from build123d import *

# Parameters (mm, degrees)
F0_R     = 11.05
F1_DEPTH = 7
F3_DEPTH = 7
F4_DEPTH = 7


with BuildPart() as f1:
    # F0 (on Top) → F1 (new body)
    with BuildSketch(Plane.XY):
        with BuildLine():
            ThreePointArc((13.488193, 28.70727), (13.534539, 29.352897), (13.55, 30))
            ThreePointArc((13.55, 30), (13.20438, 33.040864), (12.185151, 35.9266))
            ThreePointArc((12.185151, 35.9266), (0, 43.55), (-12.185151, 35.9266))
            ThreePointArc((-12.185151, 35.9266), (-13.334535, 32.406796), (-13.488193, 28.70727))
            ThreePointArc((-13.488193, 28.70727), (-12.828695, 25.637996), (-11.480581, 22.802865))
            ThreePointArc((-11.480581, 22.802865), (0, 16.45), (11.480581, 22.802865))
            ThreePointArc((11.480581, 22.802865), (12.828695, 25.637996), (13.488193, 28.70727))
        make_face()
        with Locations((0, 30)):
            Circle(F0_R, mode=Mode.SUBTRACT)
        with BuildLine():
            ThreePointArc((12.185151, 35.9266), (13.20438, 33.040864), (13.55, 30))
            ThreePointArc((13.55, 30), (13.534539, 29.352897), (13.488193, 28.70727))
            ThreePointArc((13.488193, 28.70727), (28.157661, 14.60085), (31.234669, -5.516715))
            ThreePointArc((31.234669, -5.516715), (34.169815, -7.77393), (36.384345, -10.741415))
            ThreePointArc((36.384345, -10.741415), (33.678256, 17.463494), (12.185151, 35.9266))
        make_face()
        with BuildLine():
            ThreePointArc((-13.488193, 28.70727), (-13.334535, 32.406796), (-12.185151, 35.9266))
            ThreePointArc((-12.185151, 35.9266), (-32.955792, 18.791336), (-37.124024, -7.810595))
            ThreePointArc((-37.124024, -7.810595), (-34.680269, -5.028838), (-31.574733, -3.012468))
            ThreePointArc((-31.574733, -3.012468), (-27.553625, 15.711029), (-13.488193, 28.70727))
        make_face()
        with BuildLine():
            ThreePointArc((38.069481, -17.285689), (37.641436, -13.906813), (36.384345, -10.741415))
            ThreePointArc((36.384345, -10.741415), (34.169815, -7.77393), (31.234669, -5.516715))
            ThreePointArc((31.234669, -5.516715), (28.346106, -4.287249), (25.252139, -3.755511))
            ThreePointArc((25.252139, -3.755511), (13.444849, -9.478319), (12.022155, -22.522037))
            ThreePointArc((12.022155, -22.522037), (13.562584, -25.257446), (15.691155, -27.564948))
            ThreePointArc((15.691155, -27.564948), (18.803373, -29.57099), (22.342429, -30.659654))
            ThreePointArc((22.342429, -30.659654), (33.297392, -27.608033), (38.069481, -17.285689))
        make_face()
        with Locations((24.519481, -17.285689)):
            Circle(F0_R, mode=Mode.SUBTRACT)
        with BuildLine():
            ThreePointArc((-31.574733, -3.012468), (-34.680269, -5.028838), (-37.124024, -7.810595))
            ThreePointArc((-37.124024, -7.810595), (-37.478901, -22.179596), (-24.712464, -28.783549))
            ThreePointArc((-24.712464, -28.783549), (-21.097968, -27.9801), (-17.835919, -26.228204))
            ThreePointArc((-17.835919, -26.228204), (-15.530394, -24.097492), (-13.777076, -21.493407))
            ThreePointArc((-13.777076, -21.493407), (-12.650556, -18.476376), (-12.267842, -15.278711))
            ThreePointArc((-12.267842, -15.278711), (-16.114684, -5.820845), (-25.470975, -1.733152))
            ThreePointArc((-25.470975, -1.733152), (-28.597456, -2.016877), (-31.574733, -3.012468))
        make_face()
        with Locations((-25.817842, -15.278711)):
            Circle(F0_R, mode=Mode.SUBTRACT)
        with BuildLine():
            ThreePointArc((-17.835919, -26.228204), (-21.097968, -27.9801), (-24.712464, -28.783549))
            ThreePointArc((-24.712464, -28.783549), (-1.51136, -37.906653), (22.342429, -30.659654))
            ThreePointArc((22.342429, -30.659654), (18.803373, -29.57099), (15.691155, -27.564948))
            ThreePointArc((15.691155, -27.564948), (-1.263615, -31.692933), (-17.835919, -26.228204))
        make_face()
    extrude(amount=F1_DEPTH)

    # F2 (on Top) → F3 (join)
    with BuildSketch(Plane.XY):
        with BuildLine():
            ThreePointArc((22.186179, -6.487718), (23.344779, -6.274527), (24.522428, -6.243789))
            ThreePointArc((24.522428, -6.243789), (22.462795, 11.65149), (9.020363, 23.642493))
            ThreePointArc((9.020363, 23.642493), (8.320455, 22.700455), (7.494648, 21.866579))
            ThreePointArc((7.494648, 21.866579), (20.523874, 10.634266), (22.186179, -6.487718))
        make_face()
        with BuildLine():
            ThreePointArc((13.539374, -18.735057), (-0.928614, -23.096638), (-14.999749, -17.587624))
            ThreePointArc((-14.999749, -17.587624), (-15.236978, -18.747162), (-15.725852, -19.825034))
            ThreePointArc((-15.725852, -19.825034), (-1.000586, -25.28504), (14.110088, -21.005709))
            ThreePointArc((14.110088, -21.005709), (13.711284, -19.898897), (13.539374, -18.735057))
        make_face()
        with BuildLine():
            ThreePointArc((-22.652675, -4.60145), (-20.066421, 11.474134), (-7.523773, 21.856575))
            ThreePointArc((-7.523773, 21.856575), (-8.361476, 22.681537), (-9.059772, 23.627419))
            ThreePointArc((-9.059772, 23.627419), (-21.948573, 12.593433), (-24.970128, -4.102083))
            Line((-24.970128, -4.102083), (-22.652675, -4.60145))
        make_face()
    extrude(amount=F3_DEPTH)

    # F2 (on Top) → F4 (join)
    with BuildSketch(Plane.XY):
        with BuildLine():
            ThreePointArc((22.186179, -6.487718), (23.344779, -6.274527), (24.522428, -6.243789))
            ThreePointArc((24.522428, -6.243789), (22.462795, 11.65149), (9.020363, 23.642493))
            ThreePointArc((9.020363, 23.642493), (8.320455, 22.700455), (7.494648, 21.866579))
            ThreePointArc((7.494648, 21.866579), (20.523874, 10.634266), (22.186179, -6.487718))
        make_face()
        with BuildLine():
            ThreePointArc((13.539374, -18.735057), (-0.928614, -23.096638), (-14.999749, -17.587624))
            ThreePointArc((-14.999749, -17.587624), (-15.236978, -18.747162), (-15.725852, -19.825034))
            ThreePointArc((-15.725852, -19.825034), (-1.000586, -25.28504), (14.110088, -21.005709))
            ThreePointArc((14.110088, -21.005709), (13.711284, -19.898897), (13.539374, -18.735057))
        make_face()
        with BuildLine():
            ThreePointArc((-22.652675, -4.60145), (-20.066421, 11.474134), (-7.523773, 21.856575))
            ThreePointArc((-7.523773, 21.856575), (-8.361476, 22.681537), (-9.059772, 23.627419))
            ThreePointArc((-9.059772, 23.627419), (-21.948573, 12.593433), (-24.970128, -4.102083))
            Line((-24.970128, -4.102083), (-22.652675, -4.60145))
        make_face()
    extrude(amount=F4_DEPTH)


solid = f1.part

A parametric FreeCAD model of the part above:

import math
import FreeCAD as App
import Part
import Sketcher

V = App.Vector

doc = App.newDocument("Part")
body = doc.addObject("PartDesign::Body", "Body")

# Sketch on XY plane
sketch1 = doc.addObject("Sketcher::SketchObject", "Sketch")
body.addObject(sketch1)
sketch1.AttachmentSupport = (doc.XY_Plane, [""])
sketch1.MapMode = "FlatFace"
sketch1.addGeometry([
    Part.ArcOfCircle(Part.Circle(V(25, -17, 0), V(0, 0, 1), 14), math.radians(-99), math.radians(0)),  # 0
    Part.ArcOfCircle(Part.Circle(V(25, -17, 0), V(0, 0, 1), 14), math.radians(0), math.radians(29)),  # 1
    Part.ArcOfCircle(Part.Circle(V(0, 0, 0), V(0, 0, 1), 38), math.radians(-16), math.radians(71)),  # 2
    Part.ArcOfCircle(Part.Circle(V(0, 30, 0), V(0, 0, 1), 14), math.radians(26), math.radians(154)),  # 3
    Part.ArcOfCircle(Part.Circle(V(0, 0, 0), V(0, 0, 1), 38), math.radians(109), math.radians(192)),  # 4
    Part.ArcOfCircle(Part.Circle(V(-26, -15, 0), V(0, 0, 1), 14), math.radians(147), math.radians(275)),  # 5
    Part.ArcOfCircle(Part.Circle(V(0, 0, 0), V(0, 0, 1), 38), math.radians(-131), math.radians(-54)),  # 6
    Part.ArcOfCircle(Part.Circle(V(0, 30, 0), V(0, 0, 1), 14), math.radians(-32), math.radians(-5)),  # 7
    Part.ArcOfCircle(Part.Circle(V(0, 0, 0), V(0, 0, 1), 32), math.radians(-10), math.radians(65)),  # 8
    Part.ArcOfCircle(Part.Circle(V(25, -17, 0), V(0, 0, 1), 14), math.radians(60), math.radians(87)),  # 9
    Part.ArcOfCircle(Part.Circle(V(25, -17, 0), V(0, 0, 1), 14), math.radians(87), math.radians(203)),  # 10
    Part.ArcOfCircle(Part.Circle(V(25, -17, 0), V(0, 0, 1), 14), math.radians(-157), math.radians(-131)),  # 11
    Part.ArcOfCircle(Part.Circle(V(0, 0, 0), V(0, 0, 1), 32), math.radians(-124), math.radians(-60)),  # 12
    Part.ArcOfCircle(Part.Circle(V(-26, -15, 0), V(0, 0, 1), 14), math.radians(-54), math.radians(-27)),  # 13
    Part.ArcOfCircle(Part.Circle(V(-26, -15, 0), V(0, 0, 1), 14), math.radians(-27), math.radians(0)),  # 14
    Part.ArcOfCircle(Part.Circle(V(-26, -15, 0), V(0, 0, 1), 14), math.radians(0), math.radians(89)),  # 15
    Part.ArcOfCircle(Part.Circle(V(-26, -15, 0), V(0, 0, 1), 14), math.radians(89), math.radians(115)),  # 16
    Part.ArcOfCircle(Part.Circle(V(0, 0, 0), V(0, 0, 1), 32), math.radians(115), math.radians(185)),  # 17
    Part.ArcOfCircle(Part.Circle(V(0, 30, 0), V(0, 0, 1), 14), math.radians(-175), math.radians(-148)),  # 18
    Part.ArcOfCircle(Part.Circle(V(0, 30, 0), V(0, 0, 1), 14), math.radians(-148), math.radians(-32)),  # 19
    Part.Circle(V(-26, -15, 0), V(0, 0, 1), 11),  # 20
    Part.Circle(V(25, -17, 0), V(0, 0, 1), 11),  # 21
    Part.Circle(V(0, 30, 0), V(0, 0, 1), 11),  # 22
], False)
sketch1.addConstraint([
    Sketcher.Constraint("Tangent", 0, 2, 1, 1),
    Sketcher.Constraint("Coincident", 1, 2, 2, 1),
    Sketcher.Constraint("Coincident", 2, 2, 3, 1),
    Sketcher.Constraint("Coincident", 3, 2, 4, 1),
    Sketcher.Constraint("Coincident", 4, 2, 5, 1),
    Sketcher.Constraint("Coincident", 5, 2, 6, 1),
    Sketcher.Constraint("Coincident", 6, 2, 0, 1),
    Sketcher.Constraint("Coincident", 7, 2, 8, 2),
    Sketcher.Constraint("Coincident", 8, 1, 9, 1),
    Sketcher.Constraint("Tangent", 9, 2, 10, 1),
    Sketcher.Constraint("Tangent", 10, 2, 11, 1),
    Sketcher.Constraint("Coincident", 11, 2, 12, 2),
    Sketcher.Constraint("Coincident", 12, 1, 13, 1),
    Sketcher.Constraint("Tangent", 13, 2, 14, 1),
    Sketcher.Constraint("Tangent", 14, 2, 15, 1),
    Sketcher.Constraint("Tangent", 15, 2, 16, 1),
    Sketcher.Constraint("Coincident", 16, 2, 17, 2),
    Sketcher.Constraint("Coincident", 17, 1, 18, 1),
    Sketcher.Constraint("Tangent", 18, 2, 19, 1),
    Sketcher.Constraint("Tangent", 19, 2, 7, 1),
    Sketcher.Constraint("Coincident", 2, 3, -1, 1),
    Sketcher.Constraint("Coincident", 4, 3, -1, 1),
    Sketcher.Constraint("Coincident", 6, 3, -1, 1),
    Sketcher.Constraint("Coincident", 8, 3, -1, 1),
    Sketcher.Constraint("Coincident", 12, 3, -1, 1),
    Sketcher.Constraint("Coincident", 17, 3, -1, 1),
    Sketcher.Constraint("Coincident", 7, 3, 3, 3),
    Sketcher.Constraint("Coincident", 9, 3, 0, 3),
    Sketcher.Constraint("Coincident", 11, 3, 0, 3),
    Sketcher.Constraint("Coincident", 15, 3, 5, 3),
    Sketcher.Constraint("Coincident", 18, 3, 3, 3),
    Sketcher.Constraint("Coincident", 20, 3, 5, 3),
    Sketcher.Constraint("Coincident", 21, 3, 0, 3),
    Sketcher.Constraint("Coincident", 22, 3, 3, 3),
    Sketcher.Constraint("Equal", 0, 3),
    Sketcher.Constraint("Equal", 2, 4),
    Sketcher.Constraint("Equal", 3, 5),
    Sketcher.Constraint("Equal", 4, 6),
    Sketcher.Constraint("Equal", 1, 7),
    Sketcher.Constraint("Equal", 5, 9),
    Sketcher.Constraint("Equal", 11, 15),
    Sketcher.Constraint("Equal", 7, 16),
    Sketcher.Constraint("Equal", 15, 19),
    Sketcher.Constraint("Equal", 20, 21),
    Sketcher.Constraint("Equal", 21, 22),
    Sketcher.Constraint("Symmetric", 7, 2, 17, 1, -2),
    Sketcher.Constraint("Horizontal", 13, 3, 14, 3),
    Sketcher.Constraint("Horizontal", 21, 3, 0, 2),
    Sketcher.Constraint("Horizontal", 20, 3, 14, 2),
    Sketcher.Constraint("Horizontal", 18, 2, 19, 2),
    Sketcher.Constraint("Diameter", 20, 22.1),
    Sketcher.Constraint("Radius", 0, 13.549999),
    Sketcher.Constraint("DistanceY", -1, 1, 3, 3, 30.0),
    Sketcher.Constraint("Radius", 2, 37.936769),
    Sketcher.Constraint("Radius", 12, 31.718111),
    Sketcher.Constraint("Radius", 13, 13.550009),
    Sketcher.Constraint("Radius", 8, 31.718113),
    Sketcher.Constraint("DistanceX", 10, 2, 11, 2, 3.669),
    Sketcher.Constraint("DistanceY", 13, 3, 12, 3, 15.278702),
    Sketcher.Constraint("DistanceY", 1, 2, 8, 1, 5.2247),
    Sketcher.Constraint("DistanceX", -1, 1, 0, 3, 24.519482),
    Sketcher.Constraint("DistanceX", 13, 3, -1, 1, 25.81785),
    Sketcher.Constraint("DistanceX", -1, 1, 9, 2, 25.252139),
    Sketcher.Constraint("DistanceX", 18, 2, -1, 1, 11.480581),
    Sketcher.Constraint("DistanceY", 13, 2, 16, 3, 6.214691),
    Sketcher.Constraint("DistanceX", 4, 2, 15, 2, 11.653049),
])
pad1 = doc.addObject("PartDesign::Pad", "Pad")
body.addObject(pad1)
pad1.Profile = sketch1
pad1.Length = 7

# Sketch on XY plane
sketch2 = doc.addObject("Sketcher::SketchObject", "Sketch001")
body.addObject(sketch2)
sketch2.AttachmentSupport = (doc.XY_Plane, [""])
sketch2.MapMode = "FlatFace"
sketch2.addGeometry([
    Part.ArcOfCircle(Part.Circle(V(24.1, -13.8, 0), V(0, 0, 1), 7.6), math.radians(87.03), math.radians(104.89)),  # 0
    Part.ArcOfCircle(Part.Circle(V(0, 0, 0), V(0, 0, 1), 25.3), math.radians(-14), math.radians(69)),  # 1
    Part.ArcOfCircle(Part.Circle(V(2, 28.1, 0), V(0, 0, 1), 8.3), math.radians(-48.78), math.radians(-32.56)),  # 2
    Part.ArcOfCircle(Part.Circle(V(0, 0, 0), V(0, 0, 1), 23.1), math.radians(-16), math.radians(71)),  # 3
    Part.ArcOfCircle(Part.Circle(V(0, 0, 0), V(0, 0, 1), 23.1), math.radians(-130), math.radians(-54)),  # 4
    Part.ArcOfCircle(Part.Circle(V(-20.3, -17.1, 0), V(0, 0, 1), 5.3), math.radians(-31), math.radians(-5)),  # 5
    Part.ArcOfCircle(Part.Circle(V(0, 0, 0), V(0, 0, 1), 25.3), math.radians(-128), math.radians(-56)),  # 6
    Part.ArcOfCircle(Part.Circle(V(19.4, -18.5, 0), V(0, 0, 1), 5.9), math.radians(-177), math.radians(-154)),  # 7
    Part.ArcOfCircle(Part.Circle(V(0, 0, 0), V(0, 0, 1), 23.1), math.radians(109), math.radians(191)),  # 8
    Part.ArcOfCircle(Part.Circle(V(-2.7, 27.6, 0), V(0, 0, 1), 7.5), math.radians(-148.06), math.radians(-130.06)),  # 9
    Part.ArcOfCircle(Part.Circle(V(0, 0, 0), V(0, 0, 1), 25.3), math.radians(111), math.radians(189)),  # 10
    Part.LineSegment(V(-25, -4.1, 0), V(-22.7, -4.6, 0)),  # 11
], False)
sketch2.addConstraint([
    Sketcher.Constraint("Coincident", 0, 1, 1, 1),
    Sketcher.Constraint("Coincident", 1, 2, 2, 2),
    Sketcher.Constraint("Coincident", 2, 1, 3, 2),
    Sketcher.Constraint("Coincident", 3, 1, 0, 2),
    Sketcher.Constraint("Coincident", 4, 1, 5, 2),
    Sketcher.Constraint("Coincident", 5, 1, 6, 1),
    Sketcher.Constraint("Coincident", 6, 2, 7, 2),
    Sketcher.Constraint("Coincident", 7, 1, 4, 2),
    Sketcher.Constraint("Coincident", 8, 1, 9, 2),
    Sketcher.Constraint("Coincident", 9, 1, 10, 1),
    Sketcher.Constraint("Coincident", 10, 2, 11, 1),
    Sketcher.Constraint("Coincident", 11, 2, 8, 2),
    Sketcher.Constraint("Coincident", 1, 3, -1, 1),
    Sketcher.Constraint("Coincident", 3, 3, -1, 1),
    Sketcher.Constraint("Coincident", 4, 3, -1, 1),
    Sketcher.Constraint("Coincident", 6, 3, -1, 1),
    Sketcher.Constraint("Coincident", 8, 3, -1, 1),
    Sketcher.Constraint("Coincident", 10, 3, -1, 1),
    Sketcher.Constraint("Equal", 3, 4),
    Sketcher.Constraint("Equal", 3, 8),
    Sketcher.Constraint("Equal", 6, 10),
    Sketcher.Constraint("Radius", 3, 23.115299),
    Sketcher.Constraint("Radius", 0, 7.56524),
    Sketcher.Constraint("Radius", 1, 25.304831),
    Sketcher.Constraint("Radius", 2, 8.297995),
    Sketcher.Constraint("Radius", 5, 5.294755),
    Sketcher.Constraint("Radius", 6, 25.304827),
    Sketcher.Constraint("Radius", 7, 5.916097),
    Sketcher.Constraint("Radius", 9, 7.490463),
    Sketcher.Constraint("DistanceX", 9, 1, 8, 1, 1.535999),
    Sketcher.Constraint("DistanceX", -1, 1, 0, 3, 24.130399),
    Sketcher.Constraint("DistanceX", 5, 3, -1, 1, 20.273168),
    Sketcher.Constraint("DistanceX", 9, 3, -1, 1, 2.70302),
    Sketcher.Constraint("DistanceY", 0, 1, -1, 1, 6.243789),
    Sketcher.Constraint("DistanceX", -1, 1, 2, 1, 7.494648),
    Sketcher.Constraint("DistanceX", 4, 1, -1, 1, 14.999749),
    Sketcher.Constraint("DistanceY", 6, 2, -1, 1, 21.005709),
    Sketcher.Constraint("DistanceX", 10, 2, -1, 1, 24.970128),
    Sketcher.Constraint("DistanceY", 11, 2, -1, 1, 4.60145),
    Sketcher.Constraint("DistanceX", 1, 3, 2, 3, 2.026288),
    Sketcher.Constraint("DistanceY", 7, 3, 0, 1, 12.212989),
])
pad2 = doc.addObject("PartDesign::Pad", "Pad001")
body.addObject(pad2)
pad2.Profile = sketch2
pad2.Length = 7

# Sketch on XY plane
sketch3 = doc.addObject("Sketcher::SketchObject", "Sketch002")
body.addObject(sketch3)
sketch3.AttachmentSupport = (doc.XY_Plane, [""])
sketch3.MapMode = "FlatFace"
sketch3.addGeometry([
    Part.ArcOfCircle(Part.Circle(V(24.1, -13.8, 0), V(0, 0, 1), 7.6), math.radians(87.03), math.radians(104.89)),  # 0
    Part.ArcOfCircle(Part.Circle(V(0, 0, 0), V(0, 0, 1), 25.3), math.radians(-14), math.radians(69)),  # 1
    Part.ArcOfCircle(Part.Circle(V(2, 28.1, 0), V(0, 0, 1), 8.3), math.radians(-48.78), math.radians(-32.56)),  # 2
    Part.ArcOfCircle(Part.Circle(V(0, 0, 0), V(0, 0, 1), 23.1), math.radians(-16), math.radians(71)),  # 3
    Part.ArcOfCircle(Part.Circle(V(0, 0, 0), V(0, 0, 1), 23.1), math.radians(-130), math.radians(-54)),  # 4
    Part.ArcOfCircle(Part.Circle(V(-20.3, -17.1, 0), V(0, 0, 1), 5.3), math.radians(-31), math.radians(-5)),  # 5
    Part.ArcOfCircle(Part.Circle(V(0, 0, 0), V(0, 0, 1), 25.3), math.radians(-128), math.radians(-56)),  # 6
    Part.ArcOfCircle(Part.Circle(V(19.4, -18.5, 0), V(0, 0, 1), 5.9), math.radians(-177), math.radians(-154)),  # 7
    Part.ArcOfCircle(Part.Circle(V(0, 0, 0), V(0, 0, 1), 23.1), math.radians(109), math.radians(191)),  # 8
    Part.ArcOfCircle(Part.Circle(V(-2.7, 27.6, 0), V(0, 0, 1), 7.5), math.radians(-148.06), math.radians(-130.06)),  # 9
    Part.ArcOfCircle(Part.Circle(V(0, 0, 0), V(0, 0, 1), 25.3), math.radians(111), math.radians(189)),  # 10
    Part.LineSegment(V(-25, -4.1, 0), V(-22.7, -4.6, 0)),  # 11
], False)
sketch3.addConstraint([
    Sketcher.Constraint("Coincident", 0, 1, 1, 1),
    Sketcher.Constraint("Coincident", 1, 2, 2, 2),
    Sketcher.Constraint("Coincident", 2, 1, 3, 2),
    Sketcher.Constraint("Coincident", 3, 1, 0, 2),
    Sketcher.Constraint("Coincident", 4, 1, 5, 2),
    Sketcher.Constraint("Coincident", 5, 1, 6, 1),
    Sketcher.Constraint("Coincident", 6, 2, 7, 2),
    Sketcher.Constraint("Coincident", 7, 1, 4, 2),
    Sketcher.Constraint("Coincident", 8, 1, 9, 2),
    Sketcher.Constraint("Coincident", 9, 1, 10, 1),
    Sketcher.Constraint("Coincident", 10, 2, 11, 1),
    Sketcher.Constraint("Coincident", 11, 2, 8, 2),
    Sketcher.Constraint("Coincident", 1, 3, -1, 1),
    Sketcher.Constraint("Coincident", 3, 3, -1, 1),
    Sketcher.Constraint("Coincident", 4, 3, -1, 1),
    Sketcher.Constraint("Coincident", 6, 3, -1, 1),
    Sketcher.Constraint("Coincident", 8, 3, -1, 1),
    Sketcher.Constraint("Coincident", 10, 3, -1, 1),
    Sketcher.Constraint("Equal", 3, 4),
    Sketcher.Constraint("Equal", 3, 8),
    Sketcher.Constraint("Equal", 6, 10),
    Sketcher.Constraint("Radius", 3, 23.115299),
    Sketcher.Constraint("Radius", 0, 7.56524),
    Sketcher.Constraint("Radius", 1, 25.304831),
    Sketcher.Constraint("Radius", 2, 8.297995),
    Sketcher.Constraint("Radius", 5, 5.294755),
    Sketcher.Constraint("Radius", 6, 25.304827),
    Sketcher.Constraint("Radius", 7, 5.916097),
    Sketcher.Constraint("Radius", 9, 7.490463),
    Sketcher.Constraint("DistanceX", 9, 1, 8, 1, 1.535999),
    Sketcher.Constraint("DistanceX", -1, 1, 0, 3, 24.130399),
    Sketcher.Constraint("DistanceX", 5, 3, -1, 1, 20.273168),
    Sketcher.Constraint("DistanceX", 9, 3, -1, 1, 2.70302),
    Sketcher.Constraint("DistanceY", 0, 1, -1, 1, 6.243789),
    Sketcher.Constraint("DistanceX", -1, 1, 2, 1, 7.494648),
    Sketcher.Constraint("DistanceX", 4, 1, -1, 1, 14.999749),
    Sketcher.Constraint("DistanceY", 6, 2, -1, 1, 21.005709),
    Sketcher.Constraint("DistanceX", 10, 2, -1, 1, 24.970128),
    Sketcher.Constraint("DistanceY", 11, 2, -1, 1, 4.60145),
    Sketcher.Constraint("DistanceX", 1, 3, 2, 3, 2.026288),
    Sketcher.Constraint("DistanceY", 7, 3, 0, 1, 12.212989),
])
pad3 = doc.addObject("PartDesign::Pad", "Pad002")
body.addObject(pad3)
pad3.Profile = sketch3
pad3.Length = 7

doc.recompute()
